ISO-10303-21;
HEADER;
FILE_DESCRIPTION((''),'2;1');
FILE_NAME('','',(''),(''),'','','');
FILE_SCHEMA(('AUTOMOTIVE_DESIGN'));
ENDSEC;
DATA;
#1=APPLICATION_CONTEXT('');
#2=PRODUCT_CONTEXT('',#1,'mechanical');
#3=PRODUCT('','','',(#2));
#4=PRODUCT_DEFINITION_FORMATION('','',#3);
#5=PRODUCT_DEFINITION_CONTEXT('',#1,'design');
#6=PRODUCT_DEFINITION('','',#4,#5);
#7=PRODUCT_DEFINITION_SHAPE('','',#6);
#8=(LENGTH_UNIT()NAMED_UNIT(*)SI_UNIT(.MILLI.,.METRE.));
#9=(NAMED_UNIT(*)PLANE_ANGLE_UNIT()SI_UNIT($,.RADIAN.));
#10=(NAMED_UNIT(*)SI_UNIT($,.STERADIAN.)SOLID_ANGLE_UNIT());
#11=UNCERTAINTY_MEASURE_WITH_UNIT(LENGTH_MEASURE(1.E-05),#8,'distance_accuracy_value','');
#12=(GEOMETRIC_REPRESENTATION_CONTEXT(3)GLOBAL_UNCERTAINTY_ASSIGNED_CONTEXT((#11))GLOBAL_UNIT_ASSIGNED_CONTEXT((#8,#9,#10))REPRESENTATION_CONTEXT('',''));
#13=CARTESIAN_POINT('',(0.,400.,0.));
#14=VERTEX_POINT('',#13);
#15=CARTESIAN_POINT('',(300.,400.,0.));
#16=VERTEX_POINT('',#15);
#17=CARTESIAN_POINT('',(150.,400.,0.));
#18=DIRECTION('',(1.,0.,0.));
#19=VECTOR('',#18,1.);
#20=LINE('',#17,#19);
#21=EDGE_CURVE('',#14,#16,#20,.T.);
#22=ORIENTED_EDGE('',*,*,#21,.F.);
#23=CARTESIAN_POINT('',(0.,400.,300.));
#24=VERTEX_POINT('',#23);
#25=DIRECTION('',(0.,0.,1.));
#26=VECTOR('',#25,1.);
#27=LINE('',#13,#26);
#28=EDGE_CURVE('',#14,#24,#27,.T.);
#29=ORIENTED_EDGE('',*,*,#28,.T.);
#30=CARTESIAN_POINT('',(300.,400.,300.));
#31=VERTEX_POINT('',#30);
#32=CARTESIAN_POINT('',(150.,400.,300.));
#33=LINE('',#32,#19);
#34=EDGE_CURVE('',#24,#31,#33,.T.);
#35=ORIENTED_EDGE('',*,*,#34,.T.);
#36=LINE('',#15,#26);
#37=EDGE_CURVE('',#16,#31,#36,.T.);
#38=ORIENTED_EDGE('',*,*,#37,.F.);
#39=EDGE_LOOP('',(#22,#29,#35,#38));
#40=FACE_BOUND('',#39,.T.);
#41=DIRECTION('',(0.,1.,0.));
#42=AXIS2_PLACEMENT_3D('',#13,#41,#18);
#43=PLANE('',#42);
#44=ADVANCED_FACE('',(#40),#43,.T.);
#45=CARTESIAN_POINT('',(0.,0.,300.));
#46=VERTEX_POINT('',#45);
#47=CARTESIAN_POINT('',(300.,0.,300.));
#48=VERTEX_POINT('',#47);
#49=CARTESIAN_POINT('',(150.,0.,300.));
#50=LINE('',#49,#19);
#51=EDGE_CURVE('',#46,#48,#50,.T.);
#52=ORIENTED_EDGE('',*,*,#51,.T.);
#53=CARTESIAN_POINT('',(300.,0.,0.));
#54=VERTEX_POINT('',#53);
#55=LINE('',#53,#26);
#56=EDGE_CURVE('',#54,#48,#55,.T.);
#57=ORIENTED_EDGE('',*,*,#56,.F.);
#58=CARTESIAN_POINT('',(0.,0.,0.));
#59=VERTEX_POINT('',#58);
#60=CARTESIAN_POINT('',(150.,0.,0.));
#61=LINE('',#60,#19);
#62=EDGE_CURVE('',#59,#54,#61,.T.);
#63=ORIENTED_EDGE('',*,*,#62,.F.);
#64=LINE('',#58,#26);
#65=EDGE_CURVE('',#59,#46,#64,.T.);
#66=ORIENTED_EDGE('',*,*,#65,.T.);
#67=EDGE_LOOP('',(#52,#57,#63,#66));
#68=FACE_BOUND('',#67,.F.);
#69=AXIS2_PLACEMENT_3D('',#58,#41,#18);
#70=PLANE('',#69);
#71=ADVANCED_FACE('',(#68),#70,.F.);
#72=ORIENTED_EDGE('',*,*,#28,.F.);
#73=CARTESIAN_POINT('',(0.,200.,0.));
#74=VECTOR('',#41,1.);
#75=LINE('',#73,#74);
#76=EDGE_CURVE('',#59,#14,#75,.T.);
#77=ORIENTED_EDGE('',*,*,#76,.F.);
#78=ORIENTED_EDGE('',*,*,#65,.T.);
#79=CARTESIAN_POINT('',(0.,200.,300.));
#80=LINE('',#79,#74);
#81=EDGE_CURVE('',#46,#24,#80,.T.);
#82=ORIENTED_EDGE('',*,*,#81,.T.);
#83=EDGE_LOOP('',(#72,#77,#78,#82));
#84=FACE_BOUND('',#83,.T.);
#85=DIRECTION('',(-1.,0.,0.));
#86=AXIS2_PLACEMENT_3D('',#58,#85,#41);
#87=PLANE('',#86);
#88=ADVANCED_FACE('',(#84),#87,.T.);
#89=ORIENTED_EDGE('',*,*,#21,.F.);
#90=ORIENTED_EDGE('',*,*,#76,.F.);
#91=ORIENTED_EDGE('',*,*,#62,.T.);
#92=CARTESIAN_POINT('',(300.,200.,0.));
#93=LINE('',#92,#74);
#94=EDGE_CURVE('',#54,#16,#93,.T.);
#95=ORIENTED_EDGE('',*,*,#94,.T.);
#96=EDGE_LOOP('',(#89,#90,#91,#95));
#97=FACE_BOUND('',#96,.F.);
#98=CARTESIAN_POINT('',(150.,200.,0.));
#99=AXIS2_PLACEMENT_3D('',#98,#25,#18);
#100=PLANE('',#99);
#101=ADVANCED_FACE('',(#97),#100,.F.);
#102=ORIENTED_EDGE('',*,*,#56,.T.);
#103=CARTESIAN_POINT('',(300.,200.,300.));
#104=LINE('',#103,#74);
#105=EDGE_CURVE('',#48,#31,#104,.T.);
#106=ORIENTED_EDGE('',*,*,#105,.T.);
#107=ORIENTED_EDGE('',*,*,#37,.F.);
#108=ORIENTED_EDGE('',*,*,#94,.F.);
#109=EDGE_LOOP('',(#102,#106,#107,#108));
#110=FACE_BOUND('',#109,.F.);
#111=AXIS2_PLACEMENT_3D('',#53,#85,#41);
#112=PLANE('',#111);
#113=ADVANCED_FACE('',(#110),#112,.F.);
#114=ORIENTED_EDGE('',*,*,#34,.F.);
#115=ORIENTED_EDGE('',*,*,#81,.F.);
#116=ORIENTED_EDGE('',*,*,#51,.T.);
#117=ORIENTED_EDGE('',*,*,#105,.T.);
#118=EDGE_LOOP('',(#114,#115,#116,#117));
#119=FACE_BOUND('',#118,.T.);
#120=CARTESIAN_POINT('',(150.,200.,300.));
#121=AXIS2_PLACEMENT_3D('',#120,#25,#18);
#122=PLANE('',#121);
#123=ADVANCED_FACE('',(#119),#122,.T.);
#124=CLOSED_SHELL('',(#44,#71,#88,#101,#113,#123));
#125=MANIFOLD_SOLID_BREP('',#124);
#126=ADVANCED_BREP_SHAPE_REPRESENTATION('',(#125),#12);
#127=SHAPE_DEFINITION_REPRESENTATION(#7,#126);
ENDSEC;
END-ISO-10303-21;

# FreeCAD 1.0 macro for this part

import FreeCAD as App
import Part
import Sketcher

V = App.Vector


def add_polygon(sketch, points):
    """Adds a closed chain of lines whose ends are joined by coincident constraints."""
    first, n = sketch.GeometryCount, len(points)
    for a, b in zip(points, points[1:] + points[:1]):
        sketch.addGeometry(Part.LineSegment(App.Vector(*a, 0), App.Vector(*b, 0)), False)
    for i in range(n):
        sketch.addConstraint(Sketcher.Constraint("Coincident", first + i, 2, first + (i + 1) % n, 1))

doc = App.newDocument("Part")
body = doc.addObject("PartDesign::Body", "Body")

# Sketch on XY plane
sketch1 = doc.addObject("Sketcher::SketchObject", "Sketch")
body.addObject(sketch1)
sketch1.AttachmentSupport = (doc.XY_Plane, [""])
sketch1.MapMode = "FlatFace"
add_polygon(sketch1, [(0, 400), (0, 0), (300, 0), (300, 400)])  # lines 0-3
sketch1.addConstraint([
    Sketcher.Constraint("Vertical", 0),
    Sketcher.Constraint("Horizontal", 1),
    Sketcher.Constraint("Vertical", 2),
    Sketcher.Constraint("Horizontal", 3),
    Sketcher.Constraint("Coincident", 0, 2, -1, 1),
    Sketcher.Constraint("DistanceX", 1, 1, 1, 2, 300.0),
    Sketcher.Constraint("DistanceY", 0, 2, 0, 1, 400.0),
])
pad1 = doc.addObject("PartDesign::Pad", "Pad")
body.addObject(pad1)
pad1.Profile = sketch1
pad1.Length = 300

doc.recompute()
